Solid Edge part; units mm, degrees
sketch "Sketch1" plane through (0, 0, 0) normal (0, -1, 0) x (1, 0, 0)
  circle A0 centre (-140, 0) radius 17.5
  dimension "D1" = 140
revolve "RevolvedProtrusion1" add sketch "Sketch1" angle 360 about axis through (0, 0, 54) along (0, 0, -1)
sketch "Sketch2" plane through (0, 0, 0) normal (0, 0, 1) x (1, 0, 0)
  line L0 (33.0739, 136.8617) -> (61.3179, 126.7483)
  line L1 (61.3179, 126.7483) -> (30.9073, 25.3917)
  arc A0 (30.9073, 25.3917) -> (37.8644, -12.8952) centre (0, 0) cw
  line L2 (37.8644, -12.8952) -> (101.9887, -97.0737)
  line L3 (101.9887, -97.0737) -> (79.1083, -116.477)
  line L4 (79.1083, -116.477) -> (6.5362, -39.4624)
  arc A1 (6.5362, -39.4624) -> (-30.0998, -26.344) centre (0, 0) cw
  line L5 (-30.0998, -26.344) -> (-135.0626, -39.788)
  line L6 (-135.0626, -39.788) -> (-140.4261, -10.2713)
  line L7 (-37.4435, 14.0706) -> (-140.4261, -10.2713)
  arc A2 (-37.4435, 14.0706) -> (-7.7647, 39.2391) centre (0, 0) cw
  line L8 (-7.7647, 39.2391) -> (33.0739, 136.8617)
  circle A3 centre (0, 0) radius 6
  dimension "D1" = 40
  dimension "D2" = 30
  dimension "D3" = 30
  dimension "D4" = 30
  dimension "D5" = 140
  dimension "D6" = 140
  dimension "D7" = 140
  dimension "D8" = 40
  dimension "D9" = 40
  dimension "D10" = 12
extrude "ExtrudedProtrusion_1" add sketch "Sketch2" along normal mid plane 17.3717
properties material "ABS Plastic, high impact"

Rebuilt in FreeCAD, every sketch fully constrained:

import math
import FreeCAD as App
import Part
import Sketcher
Q = App.Units.Quantity

doc = App.newDocument("Part")
body = doc.addObject("PartDesign::Body", "Body")

sketch1 = body.newObject("Sketcher::SketchObject", "Sketch")
sketch1.AttachmentSupport = (doc.getObject("XZ_Plane"), [""])
sketch1.MapMode = "FlatFace"
sketch1.addGeometry(Part.Circle(App.Vector(-140, 0, 0), App.Vector(0, 0, 1), 17.5), False)
sketch1.addConstraint([
    Sketcher.Constraint("PointOnObject", 0, 3, -1),
    Sketcher.Constraint("Diameter", 0, Q("35 mm")),
    Sketcher.Constraint("DistanceX", 0, 3, -1, 1, Q("140 mm")),
])
revolution = body.newObject("PartDesign::Revolution", "Revolution")
revolution.Profile = sketch1
revolution.ReferenceAxis = (sketch1, ["V_Axis"])
revolution.Angle = 360

sketch2 = body.newObject("Sketcher::SketchObject", "Sketch001")
sketch2.AttachmentSupport = (doc.getObject("XY_Plane"), [""])
sketch2.MapMode = "FlatFace"
sketch2.addGeometry([
    Part.LineSegment(App.Vector(61.3179, 126.7483, 0), App.Vector(33.0739, 136.8617, 0)),
    Part.LineSegment(App.Vector(33.0739, 136.8617, 0), App.Vector(-7.7647, 39.2391, 0)),
    Part.ArcOfCircle(Part.Circle(App.Vector(0, 0, 0), App.Vector(0, 0, 1), 39.999968), math.radians(101.193184), math.radians(159.404675)),
    Part.LineSegment(App.Vector(-37.4435, 14.0706, 0), App.Vector(-140.4261, -10.2713, 0)),
    Part.LineSegment(App.Vector(-140.4261, -10.2713, 0), App.Vector(-135.0626, -39.788, 0)),
    Part.LineSegment(App.Vector(-135.0626, -39.788, 0), App.Vector(-30.0998, -26.344, 0)),
    Part.ArcOfCircle(Part.Circle(App.Vector(0, 0, 0), App.Vector(0, 0, 1), 40.000037), math.radians(-138.806879), math.radians(-80.595418)),
    Part.LineSegment(App.Vector(6.5362, -39.4624, 0), App.Vector(79.1083, -116.477, 0)),
    Part.LineSegment(App.Vector(79.1083, -116.477, 0), App.Vector(101.9887, -97.0737, 0)),
    Part.LineSegment(App.Vector(101.9887, -97.0737, 0), App.Vector(37.8644, -12.8952, 0)),
    Part.ArcOfCircle(Part.Circle(App.Vector(0, 0, 0), App.Vector(0, 0, 1), 39.999968), math.radians(-18.806925), math.radians(39.404602)),
    Part.LineSegment(App.Vector(30.9073, 25.3917, 0), App.Vector(61.3179, 126.7483, 0)),
    Part.Circle(App.Vector(0, 0, 0), App.Vector(0, 0, 1), 6),
], False)
sketch2.addConstraint([
    Sketcher.Constraint("Coincident", 0, 2, 1, 1),
    Sketcher.Constraint("Coincident", 1, 2, 2, 1),
    Sketcher.Constraint("Coincident", 2, 2, 3, 1),
    Sketcher.Constraint("Coincident", 3, 2, 4, 1),
    Sketcher.Constraint("Coincident", 4, 2, 5, 1),
    Sketcher.Constraint("Coincident", 5, 2, 6, 1),
    Sketcher.Constraint("Coincident", 6, 2, 7, 1),
    Sketcher.Constraint("Coincident", 7, 2, 8, 1),
    Sketcher.Constraint("Coincident", 8, 2, 9, 1),
    Sketcher.Constraint("Coincident", 9, 2, 10, 1),
    Sketcher.Constraint("Coincident", 10, 2, 11, 1),
    Sketcher.Constraint("Coincident", 11, 2, 0, 1),
    Sketcher.Constraint("Coincident", 2, 3, -1, 1),
    Sketcher.Constraint("Coincident", 6, 3, -1, 1),
    Sketcher.Constraint("Coincident", 10, 3, -1, 1),
    Sketcher.Constraint("Coincident", 12, 3, -1, 1),
    Sketcher.Constraint("Equal", 2, 6),
    Sketcher.Constraint("Equal", 6, 10),
    Sketcher.Constraint("Equal", 1, 3),
    Sketcher.Constraint("Equal", 0, 4),
    Sketcher.Constraint("Equal", 3, 5),
    Sketcher.Constraint("Equal", 5, 7),
    Sketcher.Constraint("Equal", 4, 8),
    Sketcher.Constraint("Equal", 7, 9),
    Sketcher.Constraint("Equal", 9, 11),
    Sketcher.Constraint("Diameter", 12, Q("12 mm")),
    Sketcher.Constraint("Radius", 2, Q("40 mm")),
    Sketcher.Constraint("Distance", 0, Q("30 mm")),
    Sketcher.Constraint("DistanceX", -1, 1, 0, 2, Q("33.074 mm")),
    Sketcher.Constraint("Angle", 0, Q("160.299 deg")),
    Sketcher.Constraint("Angle", 1, Q("-112.701 deg")),
    Sketcher.Constraint("Angle", 3, Q("-166.7011 deg")),
    Sketcher.Constraint("Angle", 4, Q("-79.701 deg")),
    Sketcher.Constraint("Angle", 5, Q("7.299 deg")),
    Sketcher.Constraint("Angle", 7, Q("-46.701 deg")),
    Sketcher.Constraint("Angle", 8, Q("40.299 deg")),
    Sketcher.Constraint("Angle", 9, Q("127.299 deg")),
    Sketcher.Constraint("Angle", 11, Q("73.2989 deg")),
])
pad1 = body.newObject("PartDesign::Pad", "Pad")
pad1.Profile = sketch2
pad1.Length = 17.3717
pad1.Midplane = True

doc.recompute()
